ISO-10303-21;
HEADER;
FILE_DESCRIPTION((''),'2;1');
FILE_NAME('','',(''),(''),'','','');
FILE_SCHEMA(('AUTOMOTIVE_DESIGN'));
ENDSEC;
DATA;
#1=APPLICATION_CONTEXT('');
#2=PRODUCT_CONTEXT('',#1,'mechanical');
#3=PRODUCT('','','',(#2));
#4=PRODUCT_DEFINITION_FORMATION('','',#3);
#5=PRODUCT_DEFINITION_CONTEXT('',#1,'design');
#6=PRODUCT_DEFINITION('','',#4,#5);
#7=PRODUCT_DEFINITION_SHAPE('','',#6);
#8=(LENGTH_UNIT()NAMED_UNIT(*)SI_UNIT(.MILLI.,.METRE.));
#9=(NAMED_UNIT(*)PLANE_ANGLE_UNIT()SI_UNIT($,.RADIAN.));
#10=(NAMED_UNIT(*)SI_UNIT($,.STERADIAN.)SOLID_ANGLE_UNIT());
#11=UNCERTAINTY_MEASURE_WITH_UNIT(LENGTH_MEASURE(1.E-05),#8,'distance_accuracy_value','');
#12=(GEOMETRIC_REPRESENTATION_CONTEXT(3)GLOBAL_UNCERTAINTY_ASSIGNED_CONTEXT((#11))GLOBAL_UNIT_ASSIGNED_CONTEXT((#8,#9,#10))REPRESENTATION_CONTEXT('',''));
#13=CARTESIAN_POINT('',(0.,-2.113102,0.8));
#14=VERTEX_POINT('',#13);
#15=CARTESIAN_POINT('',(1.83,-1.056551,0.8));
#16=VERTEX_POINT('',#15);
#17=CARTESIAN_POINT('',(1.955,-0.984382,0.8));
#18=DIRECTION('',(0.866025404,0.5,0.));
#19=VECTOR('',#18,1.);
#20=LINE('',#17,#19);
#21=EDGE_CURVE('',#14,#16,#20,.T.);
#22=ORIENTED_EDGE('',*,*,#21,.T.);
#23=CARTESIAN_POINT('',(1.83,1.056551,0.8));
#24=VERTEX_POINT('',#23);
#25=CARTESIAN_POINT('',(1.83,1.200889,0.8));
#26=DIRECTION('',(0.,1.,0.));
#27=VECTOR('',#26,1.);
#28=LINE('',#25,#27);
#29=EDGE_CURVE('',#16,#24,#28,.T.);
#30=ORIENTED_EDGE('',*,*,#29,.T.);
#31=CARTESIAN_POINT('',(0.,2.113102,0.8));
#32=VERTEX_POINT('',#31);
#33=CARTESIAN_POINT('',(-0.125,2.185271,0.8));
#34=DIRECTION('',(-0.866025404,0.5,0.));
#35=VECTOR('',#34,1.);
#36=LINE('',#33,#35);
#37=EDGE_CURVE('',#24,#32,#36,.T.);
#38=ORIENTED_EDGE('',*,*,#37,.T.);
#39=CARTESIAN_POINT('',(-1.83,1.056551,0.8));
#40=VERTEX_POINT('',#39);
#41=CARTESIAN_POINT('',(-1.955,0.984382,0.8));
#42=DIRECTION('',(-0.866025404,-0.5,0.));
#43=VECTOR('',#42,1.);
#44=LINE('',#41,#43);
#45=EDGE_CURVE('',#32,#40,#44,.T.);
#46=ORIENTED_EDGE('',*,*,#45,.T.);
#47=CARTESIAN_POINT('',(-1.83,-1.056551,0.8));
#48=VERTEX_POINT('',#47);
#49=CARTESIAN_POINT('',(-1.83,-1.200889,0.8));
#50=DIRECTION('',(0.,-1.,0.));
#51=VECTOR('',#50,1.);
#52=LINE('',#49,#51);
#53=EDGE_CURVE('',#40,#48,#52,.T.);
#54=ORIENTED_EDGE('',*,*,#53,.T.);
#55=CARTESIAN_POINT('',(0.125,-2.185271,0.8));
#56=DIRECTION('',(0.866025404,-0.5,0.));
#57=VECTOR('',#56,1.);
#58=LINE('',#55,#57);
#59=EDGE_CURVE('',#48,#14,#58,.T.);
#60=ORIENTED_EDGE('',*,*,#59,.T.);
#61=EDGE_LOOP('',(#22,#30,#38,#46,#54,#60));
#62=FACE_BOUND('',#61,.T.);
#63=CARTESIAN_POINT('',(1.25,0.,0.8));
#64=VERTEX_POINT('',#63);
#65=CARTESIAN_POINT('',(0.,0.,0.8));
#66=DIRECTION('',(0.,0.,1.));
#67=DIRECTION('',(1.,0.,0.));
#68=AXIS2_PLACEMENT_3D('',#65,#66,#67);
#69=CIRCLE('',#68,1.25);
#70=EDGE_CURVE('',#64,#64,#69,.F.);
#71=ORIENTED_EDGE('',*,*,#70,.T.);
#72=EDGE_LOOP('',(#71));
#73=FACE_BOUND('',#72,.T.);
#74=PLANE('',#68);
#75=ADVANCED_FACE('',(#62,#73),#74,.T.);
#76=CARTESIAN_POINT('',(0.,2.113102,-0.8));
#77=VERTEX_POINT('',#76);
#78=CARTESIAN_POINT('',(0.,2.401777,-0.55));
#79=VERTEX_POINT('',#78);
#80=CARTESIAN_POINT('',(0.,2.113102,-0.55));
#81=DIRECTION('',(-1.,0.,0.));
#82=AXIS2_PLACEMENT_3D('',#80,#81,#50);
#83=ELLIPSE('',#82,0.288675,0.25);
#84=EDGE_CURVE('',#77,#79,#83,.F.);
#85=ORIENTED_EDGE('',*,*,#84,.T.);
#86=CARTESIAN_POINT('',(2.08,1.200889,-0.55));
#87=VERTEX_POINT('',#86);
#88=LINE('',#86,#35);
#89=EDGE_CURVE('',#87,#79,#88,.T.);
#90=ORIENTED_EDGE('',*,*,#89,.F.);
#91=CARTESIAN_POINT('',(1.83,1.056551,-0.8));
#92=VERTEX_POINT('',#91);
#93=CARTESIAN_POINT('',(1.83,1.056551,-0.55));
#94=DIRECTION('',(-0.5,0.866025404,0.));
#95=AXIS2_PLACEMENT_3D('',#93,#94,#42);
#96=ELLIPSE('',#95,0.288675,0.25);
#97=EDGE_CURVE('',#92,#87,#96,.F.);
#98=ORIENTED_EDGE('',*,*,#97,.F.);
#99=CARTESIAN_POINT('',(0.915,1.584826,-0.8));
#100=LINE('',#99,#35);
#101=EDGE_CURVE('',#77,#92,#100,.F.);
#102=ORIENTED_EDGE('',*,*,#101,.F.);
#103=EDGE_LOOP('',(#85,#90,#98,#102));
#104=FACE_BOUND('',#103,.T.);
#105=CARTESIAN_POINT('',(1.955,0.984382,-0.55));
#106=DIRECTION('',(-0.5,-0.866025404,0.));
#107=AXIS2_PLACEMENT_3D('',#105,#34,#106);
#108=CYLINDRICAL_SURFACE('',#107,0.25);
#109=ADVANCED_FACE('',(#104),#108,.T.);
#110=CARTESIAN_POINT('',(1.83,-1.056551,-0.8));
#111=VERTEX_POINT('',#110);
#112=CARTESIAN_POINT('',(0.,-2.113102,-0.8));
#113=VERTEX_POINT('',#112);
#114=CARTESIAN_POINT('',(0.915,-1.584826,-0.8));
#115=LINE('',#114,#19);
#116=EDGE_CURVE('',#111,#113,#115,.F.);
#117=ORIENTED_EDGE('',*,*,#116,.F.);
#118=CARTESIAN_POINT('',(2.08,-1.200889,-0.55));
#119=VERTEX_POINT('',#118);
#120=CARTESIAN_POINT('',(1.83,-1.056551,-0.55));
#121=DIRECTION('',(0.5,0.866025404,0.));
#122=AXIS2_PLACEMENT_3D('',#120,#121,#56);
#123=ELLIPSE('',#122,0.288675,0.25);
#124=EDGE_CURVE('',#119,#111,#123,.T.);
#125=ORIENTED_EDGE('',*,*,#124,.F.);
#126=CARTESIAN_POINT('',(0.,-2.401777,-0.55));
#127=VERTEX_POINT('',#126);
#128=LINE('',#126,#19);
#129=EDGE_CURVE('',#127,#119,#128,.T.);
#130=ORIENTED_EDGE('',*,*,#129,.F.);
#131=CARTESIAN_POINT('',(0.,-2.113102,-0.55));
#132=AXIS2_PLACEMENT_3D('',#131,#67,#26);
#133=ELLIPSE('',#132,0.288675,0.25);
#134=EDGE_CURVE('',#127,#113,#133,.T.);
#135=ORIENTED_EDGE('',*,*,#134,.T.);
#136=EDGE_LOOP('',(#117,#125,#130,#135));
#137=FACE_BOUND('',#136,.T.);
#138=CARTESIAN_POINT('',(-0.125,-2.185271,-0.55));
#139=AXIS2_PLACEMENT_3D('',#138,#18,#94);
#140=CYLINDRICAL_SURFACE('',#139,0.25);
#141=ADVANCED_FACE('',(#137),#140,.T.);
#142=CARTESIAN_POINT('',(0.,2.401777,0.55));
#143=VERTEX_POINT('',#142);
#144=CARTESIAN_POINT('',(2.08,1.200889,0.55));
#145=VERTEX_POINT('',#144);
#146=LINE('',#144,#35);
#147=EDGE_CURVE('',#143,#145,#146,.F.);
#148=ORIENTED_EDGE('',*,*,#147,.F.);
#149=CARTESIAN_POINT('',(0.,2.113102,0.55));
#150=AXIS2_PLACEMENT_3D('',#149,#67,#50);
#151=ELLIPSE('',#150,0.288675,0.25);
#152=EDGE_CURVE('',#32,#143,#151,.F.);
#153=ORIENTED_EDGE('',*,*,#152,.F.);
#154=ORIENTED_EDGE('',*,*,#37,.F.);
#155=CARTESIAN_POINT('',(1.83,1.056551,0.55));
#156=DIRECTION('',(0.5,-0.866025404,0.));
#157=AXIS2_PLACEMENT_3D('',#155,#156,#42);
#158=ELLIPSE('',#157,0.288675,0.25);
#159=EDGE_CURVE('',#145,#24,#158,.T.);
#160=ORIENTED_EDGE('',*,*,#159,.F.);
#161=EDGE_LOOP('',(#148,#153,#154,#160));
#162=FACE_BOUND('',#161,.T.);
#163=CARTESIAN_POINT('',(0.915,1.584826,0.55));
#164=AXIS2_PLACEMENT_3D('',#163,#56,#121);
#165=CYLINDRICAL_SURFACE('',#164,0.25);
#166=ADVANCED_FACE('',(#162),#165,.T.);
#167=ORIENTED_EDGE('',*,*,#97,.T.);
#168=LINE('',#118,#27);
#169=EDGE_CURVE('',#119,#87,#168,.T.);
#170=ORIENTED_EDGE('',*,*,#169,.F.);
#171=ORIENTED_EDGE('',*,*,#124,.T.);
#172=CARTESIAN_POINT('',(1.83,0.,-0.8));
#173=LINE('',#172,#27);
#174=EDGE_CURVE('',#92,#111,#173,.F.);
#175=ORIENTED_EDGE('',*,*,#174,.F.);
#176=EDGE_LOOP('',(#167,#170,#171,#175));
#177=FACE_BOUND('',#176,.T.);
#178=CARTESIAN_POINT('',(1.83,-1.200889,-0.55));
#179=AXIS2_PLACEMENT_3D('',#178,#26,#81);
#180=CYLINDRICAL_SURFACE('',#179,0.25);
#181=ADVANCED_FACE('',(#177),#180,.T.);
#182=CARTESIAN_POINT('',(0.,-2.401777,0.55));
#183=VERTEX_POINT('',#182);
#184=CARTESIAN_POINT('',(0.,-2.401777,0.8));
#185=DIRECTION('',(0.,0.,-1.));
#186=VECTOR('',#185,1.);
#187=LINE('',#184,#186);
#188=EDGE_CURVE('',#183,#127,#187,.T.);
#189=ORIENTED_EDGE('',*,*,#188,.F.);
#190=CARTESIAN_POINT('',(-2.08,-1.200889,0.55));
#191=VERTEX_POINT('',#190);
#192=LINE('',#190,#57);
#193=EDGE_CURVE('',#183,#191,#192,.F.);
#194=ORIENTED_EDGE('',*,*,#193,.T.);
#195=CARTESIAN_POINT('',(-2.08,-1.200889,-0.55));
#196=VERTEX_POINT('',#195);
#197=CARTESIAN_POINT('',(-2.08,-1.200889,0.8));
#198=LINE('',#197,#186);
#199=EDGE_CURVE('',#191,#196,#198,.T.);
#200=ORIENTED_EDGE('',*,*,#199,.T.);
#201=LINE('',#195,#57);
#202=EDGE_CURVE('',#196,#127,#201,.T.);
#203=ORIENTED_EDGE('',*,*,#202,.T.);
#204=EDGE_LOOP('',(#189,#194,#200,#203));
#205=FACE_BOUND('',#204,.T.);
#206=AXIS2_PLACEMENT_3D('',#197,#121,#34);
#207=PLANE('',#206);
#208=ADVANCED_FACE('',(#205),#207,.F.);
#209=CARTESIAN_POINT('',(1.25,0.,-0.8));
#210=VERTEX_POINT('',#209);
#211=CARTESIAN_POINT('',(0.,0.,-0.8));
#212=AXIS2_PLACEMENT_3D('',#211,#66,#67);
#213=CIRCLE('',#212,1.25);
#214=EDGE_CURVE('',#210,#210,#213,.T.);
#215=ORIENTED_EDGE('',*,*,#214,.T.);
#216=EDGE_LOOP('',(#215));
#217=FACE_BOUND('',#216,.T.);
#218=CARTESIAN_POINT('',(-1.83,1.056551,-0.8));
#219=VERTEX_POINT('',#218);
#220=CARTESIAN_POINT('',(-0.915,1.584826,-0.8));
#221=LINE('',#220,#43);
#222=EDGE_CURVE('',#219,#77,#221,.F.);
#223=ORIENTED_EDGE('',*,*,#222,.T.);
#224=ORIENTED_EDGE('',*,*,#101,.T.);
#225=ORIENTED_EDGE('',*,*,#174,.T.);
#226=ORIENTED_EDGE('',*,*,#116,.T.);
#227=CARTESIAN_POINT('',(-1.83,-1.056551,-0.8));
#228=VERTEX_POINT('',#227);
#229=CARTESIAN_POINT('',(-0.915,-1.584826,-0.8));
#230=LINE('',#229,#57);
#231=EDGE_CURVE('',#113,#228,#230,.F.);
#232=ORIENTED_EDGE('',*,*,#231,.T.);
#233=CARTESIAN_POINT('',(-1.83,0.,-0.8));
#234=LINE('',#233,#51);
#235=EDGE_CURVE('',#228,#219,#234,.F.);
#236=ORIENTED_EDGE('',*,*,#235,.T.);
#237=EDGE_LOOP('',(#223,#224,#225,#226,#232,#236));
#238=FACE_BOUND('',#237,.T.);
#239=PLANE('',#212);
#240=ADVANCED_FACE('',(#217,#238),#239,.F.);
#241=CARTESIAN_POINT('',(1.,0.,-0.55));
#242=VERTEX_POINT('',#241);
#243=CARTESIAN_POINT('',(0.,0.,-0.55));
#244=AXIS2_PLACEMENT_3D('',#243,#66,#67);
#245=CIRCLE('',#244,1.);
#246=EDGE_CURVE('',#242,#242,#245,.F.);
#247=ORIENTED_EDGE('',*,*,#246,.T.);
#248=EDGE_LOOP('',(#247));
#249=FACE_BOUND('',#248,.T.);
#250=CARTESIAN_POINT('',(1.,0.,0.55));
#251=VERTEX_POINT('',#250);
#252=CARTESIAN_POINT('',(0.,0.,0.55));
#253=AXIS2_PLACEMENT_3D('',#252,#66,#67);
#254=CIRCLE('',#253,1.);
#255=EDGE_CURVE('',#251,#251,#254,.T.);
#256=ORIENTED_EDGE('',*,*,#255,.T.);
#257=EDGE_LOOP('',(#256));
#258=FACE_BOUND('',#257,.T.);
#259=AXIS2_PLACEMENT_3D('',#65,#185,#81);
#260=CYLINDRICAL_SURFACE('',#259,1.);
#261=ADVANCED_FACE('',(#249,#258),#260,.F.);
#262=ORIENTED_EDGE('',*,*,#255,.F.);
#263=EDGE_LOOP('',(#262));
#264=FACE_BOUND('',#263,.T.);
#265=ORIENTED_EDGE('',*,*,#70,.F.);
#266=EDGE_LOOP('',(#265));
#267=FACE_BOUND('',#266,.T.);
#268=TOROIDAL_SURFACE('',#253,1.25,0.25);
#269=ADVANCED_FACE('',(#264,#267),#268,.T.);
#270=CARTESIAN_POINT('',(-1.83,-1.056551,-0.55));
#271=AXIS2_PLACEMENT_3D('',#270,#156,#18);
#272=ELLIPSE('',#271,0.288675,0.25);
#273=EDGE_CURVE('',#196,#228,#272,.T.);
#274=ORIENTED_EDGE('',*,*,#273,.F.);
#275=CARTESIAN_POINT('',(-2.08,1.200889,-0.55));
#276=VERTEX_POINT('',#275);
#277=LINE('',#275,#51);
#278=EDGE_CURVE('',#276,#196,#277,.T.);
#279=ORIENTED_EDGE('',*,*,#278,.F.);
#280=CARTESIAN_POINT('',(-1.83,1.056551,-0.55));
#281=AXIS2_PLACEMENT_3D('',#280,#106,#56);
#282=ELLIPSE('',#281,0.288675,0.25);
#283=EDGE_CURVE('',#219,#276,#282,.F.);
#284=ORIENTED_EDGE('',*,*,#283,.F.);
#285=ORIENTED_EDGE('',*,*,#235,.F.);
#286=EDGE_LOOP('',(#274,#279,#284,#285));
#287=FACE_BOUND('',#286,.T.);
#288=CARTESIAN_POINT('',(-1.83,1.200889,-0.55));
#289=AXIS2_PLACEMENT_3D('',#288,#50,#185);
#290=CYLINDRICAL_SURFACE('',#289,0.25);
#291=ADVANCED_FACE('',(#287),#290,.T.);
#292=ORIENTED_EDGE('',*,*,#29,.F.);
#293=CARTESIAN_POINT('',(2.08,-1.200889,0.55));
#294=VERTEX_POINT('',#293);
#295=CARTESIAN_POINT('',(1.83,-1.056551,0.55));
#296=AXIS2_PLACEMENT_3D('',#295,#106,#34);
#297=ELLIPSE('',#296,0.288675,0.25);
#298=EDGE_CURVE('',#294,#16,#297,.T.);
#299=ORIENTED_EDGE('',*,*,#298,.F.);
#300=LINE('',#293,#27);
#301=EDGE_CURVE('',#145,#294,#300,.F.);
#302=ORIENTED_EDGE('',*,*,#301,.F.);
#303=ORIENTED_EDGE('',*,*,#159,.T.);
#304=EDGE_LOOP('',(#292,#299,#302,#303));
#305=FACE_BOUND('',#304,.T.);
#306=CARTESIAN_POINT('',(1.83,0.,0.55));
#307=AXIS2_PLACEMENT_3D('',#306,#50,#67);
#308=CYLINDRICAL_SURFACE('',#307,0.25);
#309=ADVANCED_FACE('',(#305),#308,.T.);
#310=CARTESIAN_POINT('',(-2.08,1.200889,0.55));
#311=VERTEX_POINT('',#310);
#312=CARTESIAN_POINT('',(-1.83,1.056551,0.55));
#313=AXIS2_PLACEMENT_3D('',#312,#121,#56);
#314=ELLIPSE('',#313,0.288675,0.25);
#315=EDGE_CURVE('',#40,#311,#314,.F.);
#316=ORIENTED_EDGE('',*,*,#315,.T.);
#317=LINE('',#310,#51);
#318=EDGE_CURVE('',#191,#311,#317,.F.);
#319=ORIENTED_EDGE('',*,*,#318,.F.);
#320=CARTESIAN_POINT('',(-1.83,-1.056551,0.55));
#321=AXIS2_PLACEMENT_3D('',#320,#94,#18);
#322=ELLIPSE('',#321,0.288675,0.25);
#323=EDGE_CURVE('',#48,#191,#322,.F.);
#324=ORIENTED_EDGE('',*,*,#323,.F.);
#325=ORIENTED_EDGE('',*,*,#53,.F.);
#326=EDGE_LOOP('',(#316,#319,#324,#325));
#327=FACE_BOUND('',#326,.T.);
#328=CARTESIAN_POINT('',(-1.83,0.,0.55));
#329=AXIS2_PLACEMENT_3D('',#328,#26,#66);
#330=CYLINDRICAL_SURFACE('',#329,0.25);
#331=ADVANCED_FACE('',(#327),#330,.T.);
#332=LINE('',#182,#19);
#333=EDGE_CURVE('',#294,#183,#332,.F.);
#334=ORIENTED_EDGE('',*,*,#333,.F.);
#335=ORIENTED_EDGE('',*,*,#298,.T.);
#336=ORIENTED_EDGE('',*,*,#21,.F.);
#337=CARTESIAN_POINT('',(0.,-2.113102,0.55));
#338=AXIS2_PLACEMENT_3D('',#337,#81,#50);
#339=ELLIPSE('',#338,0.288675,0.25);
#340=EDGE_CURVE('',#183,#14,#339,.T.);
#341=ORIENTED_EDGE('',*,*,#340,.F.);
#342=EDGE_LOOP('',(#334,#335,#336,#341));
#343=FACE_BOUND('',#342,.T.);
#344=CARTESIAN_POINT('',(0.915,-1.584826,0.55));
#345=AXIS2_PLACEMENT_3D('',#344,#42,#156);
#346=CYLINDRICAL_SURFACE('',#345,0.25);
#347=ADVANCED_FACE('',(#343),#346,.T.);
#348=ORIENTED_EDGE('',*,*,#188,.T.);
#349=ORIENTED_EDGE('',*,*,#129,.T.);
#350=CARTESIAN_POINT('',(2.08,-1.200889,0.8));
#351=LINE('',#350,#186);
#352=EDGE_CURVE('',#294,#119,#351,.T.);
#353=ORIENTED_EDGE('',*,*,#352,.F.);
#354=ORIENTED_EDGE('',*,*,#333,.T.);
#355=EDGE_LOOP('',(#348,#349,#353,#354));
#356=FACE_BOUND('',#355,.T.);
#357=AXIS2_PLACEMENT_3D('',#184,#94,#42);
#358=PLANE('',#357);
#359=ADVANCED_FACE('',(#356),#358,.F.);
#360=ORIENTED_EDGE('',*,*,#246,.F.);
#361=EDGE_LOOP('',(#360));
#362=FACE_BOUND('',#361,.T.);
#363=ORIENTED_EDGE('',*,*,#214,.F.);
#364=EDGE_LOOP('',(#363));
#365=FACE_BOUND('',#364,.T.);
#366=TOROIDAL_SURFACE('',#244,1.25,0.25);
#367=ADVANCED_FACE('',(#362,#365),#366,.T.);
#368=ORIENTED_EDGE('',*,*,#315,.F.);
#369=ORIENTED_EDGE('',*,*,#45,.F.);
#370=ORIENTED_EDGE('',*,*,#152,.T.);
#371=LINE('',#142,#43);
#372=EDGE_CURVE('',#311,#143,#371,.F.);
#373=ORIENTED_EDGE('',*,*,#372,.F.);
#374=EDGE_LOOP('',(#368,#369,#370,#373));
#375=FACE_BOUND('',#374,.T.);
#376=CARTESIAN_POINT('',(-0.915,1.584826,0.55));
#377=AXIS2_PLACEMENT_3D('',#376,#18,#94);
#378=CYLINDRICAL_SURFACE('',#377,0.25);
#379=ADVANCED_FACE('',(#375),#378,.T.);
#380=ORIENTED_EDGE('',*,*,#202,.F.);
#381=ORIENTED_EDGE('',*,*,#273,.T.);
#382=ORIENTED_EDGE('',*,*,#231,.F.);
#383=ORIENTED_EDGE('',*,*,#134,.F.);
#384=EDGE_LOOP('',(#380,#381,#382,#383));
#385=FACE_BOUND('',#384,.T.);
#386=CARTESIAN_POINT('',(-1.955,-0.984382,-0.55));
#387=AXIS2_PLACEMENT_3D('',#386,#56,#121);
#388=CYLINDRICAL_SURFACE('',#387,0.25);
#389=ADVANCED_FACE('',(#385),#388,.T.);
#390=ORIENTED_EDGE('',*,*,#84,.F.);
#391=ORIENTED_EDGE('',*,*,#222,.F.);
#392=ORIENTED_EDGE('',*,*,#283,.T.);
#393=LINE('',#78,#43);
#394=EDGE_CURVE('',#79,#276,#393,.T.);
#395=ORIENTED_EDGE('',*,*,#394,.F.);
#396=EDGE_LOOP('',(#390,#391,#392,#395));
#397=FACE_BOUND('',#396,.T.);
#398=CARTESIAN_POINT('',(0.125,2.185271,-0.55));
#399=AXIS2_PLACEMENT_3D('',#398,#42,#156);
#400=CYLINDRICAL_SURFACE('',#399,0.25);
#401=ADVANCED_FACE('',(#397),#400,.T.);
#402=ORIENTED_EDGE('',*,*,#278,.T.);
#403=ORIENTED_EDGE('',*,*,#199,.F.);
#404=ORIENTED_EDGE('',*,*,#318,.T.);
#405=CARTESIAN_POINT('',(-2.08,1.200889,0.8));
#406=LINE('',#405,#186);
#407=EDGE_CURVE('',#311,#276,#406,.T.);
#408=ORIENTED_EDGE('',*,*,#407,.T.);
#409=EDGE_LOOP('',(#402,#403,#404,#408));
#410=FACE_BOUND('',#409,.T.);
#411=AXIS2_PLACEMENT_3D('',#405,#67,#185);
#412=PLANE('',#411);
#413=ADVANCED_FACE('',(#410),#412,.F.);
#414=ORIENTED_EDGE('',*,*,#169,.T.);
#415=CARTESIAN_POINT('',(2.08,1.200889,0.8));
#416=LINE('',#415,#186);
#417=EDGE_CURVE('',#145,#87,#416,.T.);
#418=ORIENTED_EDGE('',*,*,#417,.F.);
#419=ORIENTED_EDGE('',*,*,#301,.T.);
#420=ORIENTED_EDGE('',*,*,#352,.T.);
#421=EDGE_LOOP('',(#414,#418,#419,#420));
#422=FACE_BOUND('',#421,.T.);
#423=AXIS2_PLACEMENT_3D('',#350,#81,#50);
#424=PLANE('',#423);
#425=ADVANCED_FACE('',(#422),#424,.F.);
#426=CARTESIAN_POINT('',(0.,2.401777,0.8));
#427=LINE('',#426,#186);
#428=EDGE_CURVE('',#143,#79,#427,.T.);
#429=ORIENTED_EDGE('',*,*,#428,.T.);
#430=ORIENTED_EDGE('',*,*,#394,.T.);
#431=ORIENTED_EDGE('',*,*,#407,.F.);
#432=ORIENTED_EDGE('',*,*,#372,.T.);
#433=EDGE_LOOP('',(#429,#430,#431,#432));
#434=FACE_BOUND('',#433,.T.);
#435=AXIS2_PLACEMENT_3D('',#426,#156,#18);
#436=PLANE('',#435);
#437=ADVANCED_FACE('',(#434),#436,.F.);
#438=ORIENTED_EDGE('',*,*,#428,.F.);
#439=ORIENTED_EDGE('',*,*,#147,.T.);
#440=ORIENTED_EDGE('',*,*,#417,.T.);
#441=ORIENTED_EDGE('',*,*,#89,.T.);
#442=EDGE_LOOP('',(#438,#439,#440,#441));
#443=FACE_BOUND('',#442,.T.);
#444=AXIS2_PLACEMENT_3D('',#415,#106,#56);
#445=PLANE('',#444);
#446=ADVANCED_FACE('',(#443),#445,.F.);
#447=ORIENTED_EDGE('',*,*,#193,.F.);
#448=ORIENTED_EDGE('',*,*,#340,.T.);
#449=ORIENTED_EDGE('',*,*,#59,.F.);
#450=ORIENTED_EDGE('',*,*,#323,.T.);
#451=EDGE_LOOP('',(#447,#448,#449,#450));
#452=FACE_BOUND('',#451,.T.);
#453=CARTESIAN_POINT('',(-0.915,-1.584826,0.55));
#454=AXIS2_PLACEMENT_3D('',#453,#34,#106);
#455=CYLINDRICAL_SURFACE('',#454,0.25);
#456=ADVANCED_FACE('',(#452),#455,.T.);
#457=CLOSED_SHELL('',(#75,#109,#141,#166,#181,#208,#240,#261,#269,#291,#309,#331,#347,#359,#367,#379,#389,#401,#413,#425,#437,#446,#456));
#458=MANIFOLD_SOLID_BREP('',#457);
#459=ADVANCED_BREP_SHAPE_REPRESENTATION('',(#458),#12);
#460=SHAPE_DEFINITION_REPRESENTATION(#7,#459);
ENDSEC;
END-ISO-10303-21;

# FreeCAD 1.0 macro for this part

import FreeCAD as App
import Part
import Sketcher
from FreeCAD import Vector
Q = App.Units.Quantity


def edges_at(feature, points):
    """Names of the edges that pass closest to the given points."""
    edges = feature.Shape.Edges
    near = lambda p: min(range(len(edges)), key=lambda i: edges[i].distToShape(Part.Vertex(*p))[0])
    return sorted({f"Edge{near(p) + 1}" for p in points})

doc = App.newDocument("Part")
body = doc.addObject("PartDesign::Body", "Body")

sketch1 = body.newObject("Sketcher::SketchObject", "Sketch")
sketch1.AttachmentSupport = (doc.getObject("XY_Plane"), [""])
sketch1.MapMode = "FlatFace"
sketch1.addGeometry([
    Part.LineSegment(Vector(2.1, -1.2, 0), Vector(2.1, 1.2, 0)),
    Part.LineSegment(Vector(2.1, 1.2, 0), Vector(0, 2.4, 0)),
    Part.LineSegment(Vector(0, 2.4, 0), Vector(-2.1, 1.2, 0)),
    Part.LineSegment(Vector(-2.1, 1.2, 0), Vector(-2.1, -1.2, 0)),
    Part.LineSegment(Vector(-2.1, -1.2, 0), Vector(0, -2.4, 0)),
    Part.LineSegment(Vector(0, -2.4, 0), Vector(2.1, -1.2, 0)),
    Part.Circle(Vector(0, 0, 0), Vector(0, 0, 1), 1),
], False)
sketch1.addConstraint([
    Sketcher.Constraint("Coincident", 0, 2, 1, 1),
    Sketcher.Constraint("Coincident", 1, 2, 2, 1),
    Sketcher.Constraint("Coincident", 2, 2, 3, 1),
    Sketcher.Constraint("Coincident", 3, 2, 4, 1),
    Sketcher.Constraint("Coincident", 4, 2, 5, 1),
    Sketcher.Constraint("Coincident", 5, 2, 0, 1),
    Sketcher.Constraint("Vertical", 0),
    Sketcher.Constraint("Vertical", 3),
    Sketcher.Constraint("Coincident", 6, 3, -1, 1),
    Sketcher.Constraint("Symmetric", 0, 2, 3, 2, -1, 1),
    Sketcher.Constraint("Symmetric", 1, 2, 4, 2, -1, 1),
    Sketcher.Constraint("PointOnObject", 1, 2, -2),
    Sketcher.Constraint("Parallel", 2, 5),
    Sketcher.Constraint("Horizontal", 0, 2, 2, 2),
    Sketcher.Constraint("Diameter", 6, 2.0),
    Sketcher.Constraint("Angle", 1, Q("150 deg")),
    Sketcher.Constraint("DistanceX", -1, 1, 0, 2, 2.08),
    Sketcher.Constraint("DistanceY", 0, 1, 0, 2, 2.401777),
])
pad1 = body.newObject("PartDesign::Pad", "Pad")
pad1.Profile = sketch1
pad1.Length = 1.6
pad1.Midplane = True
doc.recompute()

fillet = body.newObject("PartDesign::Fillet", "Fillet")
fillet.Base = (pad1, edges_at(pad1, [
    (1.04, 1.801, 0.8),
    (-1.04, 1.801, 0.8),
    (-1, 0, -0.8),
    (-1, 0, 0.8),
    (-2.08, 0, 0.8),
    (-1.04, -1.801, 0.8),
    (1.04, -1.801, 0.8),
    (-1.04, -1.801, -0.8),
    (-2.08, 0, -0.8),
    (-1.04, 1.801, -0.8),
    (1.04, 1.801, -0.8),
    (2.08, 0, -0.8),
    (1.04, -1.801, -0.8),
    (2.08, 0, 0.8),
]))
fillet.Radius = 0.25

doc.recompute()
